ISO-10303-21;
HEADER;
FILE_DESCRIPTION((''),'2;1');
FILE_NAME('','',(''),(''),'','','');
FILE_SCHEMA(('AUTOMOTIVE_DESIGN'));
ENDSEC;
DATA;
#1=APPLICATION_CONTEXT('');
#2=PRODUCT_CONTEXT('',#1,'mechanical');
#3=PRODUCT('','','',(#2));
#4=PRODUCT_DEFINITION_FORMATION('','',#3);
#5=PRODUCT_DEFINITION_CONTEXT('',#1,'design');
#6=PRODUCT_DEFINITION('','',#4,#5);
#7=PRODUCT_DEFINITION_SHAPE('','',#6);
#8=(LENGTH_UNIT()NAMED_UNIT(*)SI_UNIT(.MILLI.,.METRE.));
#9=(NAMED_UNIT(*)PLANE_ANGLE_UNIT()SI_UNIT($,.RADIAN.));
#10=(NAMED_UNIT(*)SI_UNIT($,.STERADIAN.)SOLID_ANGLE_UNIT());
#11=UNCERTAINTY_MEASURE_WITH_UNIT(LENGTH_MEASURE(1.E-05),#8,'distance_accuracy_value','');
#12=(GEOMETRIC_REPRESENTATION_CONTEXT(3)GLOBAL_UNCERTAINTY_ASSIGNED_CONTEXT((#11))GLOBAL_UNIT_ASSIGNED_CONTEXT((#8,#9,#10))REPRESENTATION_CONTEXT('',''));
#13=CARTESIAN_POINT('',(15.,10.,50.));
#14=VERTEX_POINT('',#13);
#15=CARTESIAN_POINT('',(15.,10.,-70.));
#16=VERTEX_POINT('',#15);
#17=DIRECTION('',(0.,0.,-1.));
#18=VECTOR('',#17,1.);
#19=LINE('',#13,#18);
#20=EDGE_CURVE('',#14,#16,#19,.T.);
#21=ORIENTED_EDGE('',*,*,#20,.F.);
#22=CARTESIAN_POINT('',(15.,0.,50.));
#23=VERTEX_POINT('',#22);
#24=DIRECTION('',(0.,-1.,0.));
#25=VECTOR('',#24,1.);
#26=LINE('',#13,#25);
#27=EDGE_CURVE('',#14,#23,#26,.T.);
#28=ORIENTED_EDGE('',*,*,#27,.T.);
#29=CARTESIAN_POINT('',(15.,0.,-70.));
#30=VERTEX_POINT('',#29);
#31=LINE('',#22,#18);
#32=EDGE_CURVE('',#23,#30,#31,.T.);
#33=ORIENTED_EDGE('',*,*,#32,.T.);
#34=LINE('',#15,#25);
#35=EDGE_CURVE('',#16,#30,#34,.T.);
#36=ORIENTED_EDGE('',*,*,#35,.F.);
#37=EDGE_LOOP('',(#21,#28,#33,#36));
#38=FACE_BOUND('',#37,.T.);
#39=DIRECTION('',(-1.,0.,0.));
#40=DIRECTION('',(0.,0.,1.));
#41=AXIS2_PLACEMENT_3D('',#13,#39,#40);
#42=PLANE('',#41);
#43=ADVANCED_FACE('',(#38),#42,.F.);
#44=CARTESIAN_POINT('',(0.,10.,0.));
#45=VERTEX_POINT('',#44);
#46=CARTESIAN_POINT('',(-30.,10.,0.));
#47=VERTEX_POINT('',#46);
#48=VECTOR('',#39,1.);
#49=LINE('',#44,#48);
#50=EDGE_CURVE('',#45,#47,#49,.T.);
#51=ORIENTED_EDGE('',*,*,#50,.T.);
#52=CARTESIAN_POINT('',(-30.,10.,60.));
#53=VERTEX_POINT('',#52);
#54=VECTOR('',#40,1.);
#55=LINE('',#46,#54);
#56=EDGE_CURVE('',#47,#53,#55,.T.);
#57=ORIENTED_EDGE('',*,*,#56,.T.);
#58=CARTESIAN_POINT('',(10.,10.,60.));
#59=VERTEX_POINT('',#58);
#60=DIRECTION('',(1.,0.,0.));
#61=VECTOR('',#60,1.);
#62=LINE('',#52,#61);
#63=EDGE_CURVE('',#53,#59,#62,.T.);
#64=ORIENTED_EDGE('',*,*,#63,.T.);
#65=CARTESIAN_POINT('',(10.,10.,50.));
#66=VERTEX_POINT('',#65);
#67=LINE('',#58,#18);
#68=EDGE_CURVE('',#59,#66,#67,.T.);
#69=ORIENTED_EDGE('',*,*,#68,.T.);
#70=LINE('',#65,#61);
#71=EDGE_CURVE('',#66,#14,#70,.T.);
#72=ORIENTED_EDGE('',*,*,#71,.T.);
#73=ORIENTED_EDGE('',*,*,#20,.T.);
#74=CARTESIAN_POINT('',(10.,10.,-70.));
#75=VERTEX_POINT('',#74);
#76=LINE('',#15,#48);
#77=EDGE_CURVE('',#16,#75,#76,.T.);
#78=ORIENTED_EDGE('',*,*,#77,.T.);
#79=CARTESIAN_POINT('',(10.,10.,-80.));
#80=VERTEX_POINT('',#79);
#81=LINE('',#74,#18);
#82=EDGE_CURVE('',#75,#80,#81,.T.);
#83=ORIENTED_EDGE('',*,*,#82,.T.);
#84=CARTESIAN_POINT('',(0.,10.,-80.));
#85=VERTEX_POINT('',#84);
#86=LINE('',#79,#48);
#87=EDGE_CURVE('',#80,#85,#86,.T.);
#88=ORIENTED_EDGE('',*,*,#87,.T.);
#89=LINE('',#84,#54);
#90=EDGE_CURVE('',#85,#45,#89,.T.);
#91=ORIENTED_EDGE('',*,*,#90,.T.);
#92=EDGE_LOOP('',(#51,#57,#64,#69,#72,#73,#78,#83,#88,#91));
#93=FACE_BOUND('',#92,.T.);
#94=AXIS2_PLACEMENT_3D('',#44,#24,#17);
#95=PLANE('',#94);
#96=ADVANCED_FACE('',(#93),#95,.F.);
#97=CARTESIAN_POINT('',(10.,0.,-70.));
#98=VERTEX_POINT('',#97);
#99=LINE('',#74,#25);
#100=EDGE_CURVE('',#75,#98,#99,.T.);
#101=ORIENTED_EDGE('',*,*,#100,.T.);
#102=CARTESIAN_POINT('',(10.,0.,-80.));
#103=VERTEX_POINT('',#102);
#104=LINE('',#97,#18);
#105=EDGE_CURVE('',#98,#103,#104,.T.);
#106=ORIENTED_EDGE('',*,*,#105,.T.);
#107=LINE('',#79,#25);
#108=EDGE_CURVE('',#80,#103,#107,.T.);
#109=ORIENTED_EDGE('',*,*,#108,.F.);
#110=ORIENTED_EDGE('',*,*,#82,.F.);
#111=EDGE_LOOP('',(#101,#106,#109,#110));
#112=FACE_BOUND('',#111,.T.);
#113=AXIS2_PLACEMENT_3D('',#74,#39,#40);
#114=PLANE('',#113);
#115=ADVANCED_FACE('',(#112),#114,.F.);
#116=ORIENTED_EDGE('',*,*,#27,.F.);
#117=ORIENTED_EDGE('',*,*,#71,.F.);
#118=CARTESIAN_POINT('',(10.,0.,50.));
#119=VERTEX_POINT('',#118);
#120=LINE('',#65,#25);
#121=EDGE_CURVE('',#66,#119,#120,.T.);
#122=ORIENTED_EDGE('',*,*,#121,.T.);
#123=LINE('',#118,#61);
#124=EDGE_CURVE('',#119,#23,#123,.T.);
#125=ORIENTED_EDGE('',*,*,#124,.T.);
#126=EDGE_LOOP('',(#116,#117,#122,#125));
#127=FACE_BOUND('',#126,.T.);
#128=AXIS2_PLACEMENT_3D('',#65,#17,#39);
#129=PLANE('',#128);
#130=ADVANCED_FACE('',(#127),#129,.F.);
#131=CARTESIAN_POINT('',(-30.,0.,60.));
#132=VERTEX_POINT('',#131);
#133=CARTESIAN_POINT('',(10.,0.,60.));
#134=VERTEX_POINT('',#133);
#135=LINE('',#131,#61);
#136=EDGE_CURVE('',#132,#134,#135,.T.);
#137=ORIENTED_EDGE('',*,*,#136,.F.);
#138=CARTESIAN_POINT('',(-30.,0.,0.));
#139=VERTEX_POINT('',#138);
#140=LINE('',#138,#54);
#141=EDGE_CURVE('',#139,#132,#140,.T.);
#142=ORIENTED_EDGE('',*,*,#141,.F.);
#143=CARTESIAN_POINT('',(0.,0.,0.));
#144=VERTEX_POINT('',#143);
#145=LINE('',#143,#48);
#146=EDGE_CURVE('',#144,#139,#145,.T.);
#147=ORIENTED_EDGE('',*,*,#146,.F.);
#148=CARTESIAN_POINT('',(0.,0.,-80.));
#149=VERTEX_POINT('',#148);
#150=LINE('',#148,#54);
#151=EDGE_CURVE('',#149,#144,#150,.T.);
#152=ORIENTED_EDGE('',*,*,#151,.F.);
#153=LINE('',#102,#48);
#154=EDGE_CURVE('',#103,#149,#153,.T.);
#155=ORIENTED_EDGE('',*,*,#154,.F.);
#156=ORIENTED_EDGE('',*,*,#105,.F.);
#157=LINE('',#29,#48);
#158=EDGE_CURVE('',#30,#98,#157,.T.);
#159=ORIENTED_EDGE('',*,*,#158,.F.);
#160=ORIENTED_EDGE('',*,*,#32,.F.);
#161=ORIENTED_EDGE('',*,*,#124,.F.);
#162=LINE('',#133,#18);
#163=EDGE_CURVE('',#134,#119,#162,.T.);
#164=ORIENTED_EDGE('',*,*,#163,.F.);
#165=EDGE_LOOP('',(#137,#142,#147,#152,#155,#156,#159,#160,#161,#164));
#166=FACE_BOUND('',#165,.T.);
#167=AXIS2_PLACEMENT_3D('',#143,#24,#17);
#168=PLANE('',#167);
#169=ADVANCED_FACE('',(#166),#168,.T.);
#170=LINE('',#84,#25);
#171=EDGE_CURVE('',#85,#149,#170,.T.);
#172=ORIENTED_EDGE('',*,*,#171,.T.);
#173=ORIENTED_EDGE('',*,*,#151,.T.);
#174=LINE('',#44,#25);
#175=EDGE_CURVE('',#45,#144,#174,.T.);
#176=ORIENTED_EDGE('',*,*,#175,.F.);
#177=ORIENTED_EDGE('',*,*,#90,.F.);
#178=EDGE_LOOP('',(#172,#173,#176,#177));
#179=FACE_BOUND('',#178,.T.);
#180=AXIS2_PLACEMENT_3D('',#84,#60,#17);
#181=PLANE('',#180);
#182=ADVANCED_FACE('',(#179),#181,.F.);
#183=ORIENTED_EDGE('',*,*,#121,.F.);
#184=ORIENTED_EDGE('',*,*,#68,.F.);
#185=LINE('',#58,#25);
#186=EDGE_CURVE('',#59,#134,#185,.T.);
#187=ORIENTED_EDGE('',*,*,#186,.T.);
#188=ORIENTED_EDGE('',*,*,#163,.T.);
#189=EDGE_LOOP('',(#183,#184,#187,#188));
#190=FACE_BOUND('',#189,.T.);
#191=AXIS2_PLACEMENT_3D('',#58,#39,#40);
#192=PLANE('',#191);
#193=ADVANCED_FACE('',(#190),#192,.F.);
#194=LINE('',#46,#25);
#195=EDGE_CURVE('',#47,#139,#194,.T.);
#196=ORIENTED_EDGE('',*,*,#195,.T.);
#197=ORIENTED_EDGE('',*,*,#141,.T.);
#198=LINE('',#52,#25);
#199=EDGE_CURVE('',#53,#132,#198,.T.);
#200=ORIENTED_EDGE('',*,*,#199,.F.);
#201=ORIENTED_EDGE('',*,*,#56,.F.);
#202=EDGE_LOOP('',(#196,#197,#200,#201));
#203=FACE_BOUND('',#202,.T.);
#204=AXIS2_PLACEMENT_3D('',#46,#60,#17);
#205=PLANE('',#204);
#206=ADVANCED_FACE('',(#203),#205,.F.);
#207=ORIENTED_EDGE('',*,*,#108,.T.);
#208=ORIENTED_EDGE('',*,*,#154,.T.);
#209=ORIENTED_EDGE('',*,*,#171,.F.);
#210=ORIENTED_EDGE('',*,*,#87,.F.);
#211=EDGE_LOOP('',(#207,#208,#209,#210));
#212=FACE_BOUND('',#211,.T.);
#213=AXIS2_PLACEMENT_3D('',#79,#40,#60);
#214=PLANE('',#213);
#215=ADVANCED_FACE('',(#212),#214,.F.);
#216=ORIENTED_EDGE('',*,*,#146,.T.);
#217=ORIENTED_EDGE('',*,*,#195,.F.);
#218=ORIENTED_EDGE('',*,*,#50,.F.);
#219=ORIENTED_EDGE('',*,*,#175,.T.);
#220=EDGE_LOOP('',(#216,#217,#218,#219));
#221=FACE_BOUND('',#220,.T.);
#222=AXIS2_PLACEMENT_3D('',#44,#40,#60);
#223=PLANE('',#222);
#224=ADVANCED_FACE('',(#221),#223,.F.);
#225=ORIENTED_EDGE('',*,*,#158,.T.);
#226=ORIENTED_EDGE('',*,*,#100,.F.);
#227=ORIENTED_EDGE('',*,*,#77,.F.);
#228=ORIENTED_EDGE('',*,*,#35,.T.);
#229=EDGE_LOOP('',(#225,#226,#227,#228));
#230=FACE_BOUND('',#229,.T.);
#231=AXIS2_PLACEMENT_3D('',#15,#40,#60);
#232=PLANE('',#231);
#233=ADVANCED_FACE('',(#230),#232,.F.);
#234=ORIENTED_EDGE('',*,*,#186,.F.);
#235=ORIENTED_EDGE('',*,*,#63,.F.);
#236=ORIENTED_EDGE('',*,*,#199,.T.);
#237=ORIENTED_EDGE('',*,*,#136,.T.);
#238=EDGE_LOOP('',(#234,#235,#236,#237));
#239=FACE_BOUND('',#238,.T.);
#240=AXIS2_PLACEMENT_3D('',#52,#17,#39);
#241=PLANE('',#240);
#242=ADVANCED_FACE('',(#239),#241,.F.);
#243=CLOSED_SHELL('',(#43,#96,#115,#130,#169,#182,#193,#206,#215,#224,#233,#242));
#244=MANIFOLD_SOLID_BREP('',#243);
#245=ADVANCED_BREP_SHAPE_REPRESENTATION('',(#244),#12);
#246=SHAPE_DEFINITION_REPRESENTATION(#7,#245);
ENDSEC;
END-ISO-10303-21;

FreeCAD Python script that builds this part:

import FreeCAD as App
import Part
import Sketcher


def add_polygon(sketch, points):
    """Adds a closed chain of lines whose ends are joined by coincident constraints."""
    first, n = sketch.GeometryCount, len(points)
    for a, b in zip(points, points[1:] + points[:1]):
        sketch.addGeometry(Part.LineSegment(App.Vector(*a, 0), App.Vector(*b, 0)), False)
    for i in range(n):
        sketch.addConstraint(Sketcher.Constraint("Coincident", first + i, 2, first + (i + 1) % n, 1))

doc = App.newDocument("Part")
params = doc.addObject("Spreadsheet::Sheet", "Params")
for row, (alias, value) in enumerate([
    ("sketch1_width", "30 mm"),
    ("sketch1_width2", "40 mm"),
    ("sketch1_width3", "5 mm"),
    ("sketch1_height", "60 mm"),
    ("sketch1_height2", "120 mm"),
    ("pad1_length", "10 mm"),
], start=1):
    params.set(f"A{row}", alias)
    params.set(f"B{row}", "=" + value)
    params.setAlias(f"B{row}", alias)

body = doc.addObject("PartDesign::Body", "Body")

sketch1 = body.newObject("Sketcher::SketchObject", "Sketch")
sketch1.AttachmentSupport = (doc.getObject("XZ_Plane"), [""])
sketch1.MapMode = "FlatFace"
add_polygon(sketch1, [(0, 0), (-30, 0), (-30, 60), (10, 60), (10, 50), (15, 50), (15, -70), (10, -70), (10, -80), (0, -80)])
sketch1.addConstraint(Sketcher.Constraint("Horizontal", 0))
sketch1.addConstraint(Sketcher.Constraint("Vertical", 1))
sketch1.addConstraint(Sketcher.Constraint("Horizontal", 2))
sketch1.addConstraint(Sketcher.Constraint("Vertical", 3))
sketch1.addConstraint(Sketcher.Constraint("Horizontal", 4))
sketch1.addConstraint(Sketcher.Constraint("Vertical", 5))
sketch1.addConstraint(Sketcher.Constraint("Horizontal", 6))
sketch1.addConstraint(Sketcher.Constraint("Vertical", 7))
sketch1.addConstraint(Sketcher.Constraint("Horizontal", 8))
sketch1.addConstraint(Sketcher.Constraint("Vertical", 9))
sketch1.addConstraint(Sketcher.Constraint("Coincident", 9, 2, -1, 1))
sketch1.addConstraint(Sketcher.Constraint("Vertical", 3, 2, 6, 2))
sketch1.addConstraint(Sketcher.Constraint("Equal", 8, 3))
sketch1.addConstraint(Sketcher.Constraint("Equal", 3, 7))
sketch1.addConstraint(Sketcher.Constraint("DistanceX", 0, 2, 0, 1, 30.0))
sketch1.addConstraint(Sketcher.Constraint("DistanceX", 2, 1, 2, 2, 40.0))
sketch1.addConstraint(Sketcher.Constraint("DistanceX", 4, 1, 4, 2, 5.0))
sketch1.addConstraint(Sketcher.Constraint("DistanceY", 1, 1, 1, 2, 60.0))
sketch1.addConstraint(Sketcher.Constraint("DistanceY", 5, 2, 5, 1, 120.0))
sketch1.setExpression("Constraints[24]", "Params.sketch1_width")
sketch1.setExpression("Constraints[25]", "Params.sketch1_width2")
sketch1.setExpression("Constraints[26]", "Params.sketch1_width3")
sketch1.setExpression("Constraints[27]", "Params.sketch1_height")
sketch1.setExpression("Constraints[28]", "Params.sketch1_height2")
pad1 = body.newObject("PartDesign::Pad", "Pad")
pad1.Profile = sketch1
pad1.setExpression("Length", "Params.pad1_length")
pad1.Reversed = True

doc.recompute()
